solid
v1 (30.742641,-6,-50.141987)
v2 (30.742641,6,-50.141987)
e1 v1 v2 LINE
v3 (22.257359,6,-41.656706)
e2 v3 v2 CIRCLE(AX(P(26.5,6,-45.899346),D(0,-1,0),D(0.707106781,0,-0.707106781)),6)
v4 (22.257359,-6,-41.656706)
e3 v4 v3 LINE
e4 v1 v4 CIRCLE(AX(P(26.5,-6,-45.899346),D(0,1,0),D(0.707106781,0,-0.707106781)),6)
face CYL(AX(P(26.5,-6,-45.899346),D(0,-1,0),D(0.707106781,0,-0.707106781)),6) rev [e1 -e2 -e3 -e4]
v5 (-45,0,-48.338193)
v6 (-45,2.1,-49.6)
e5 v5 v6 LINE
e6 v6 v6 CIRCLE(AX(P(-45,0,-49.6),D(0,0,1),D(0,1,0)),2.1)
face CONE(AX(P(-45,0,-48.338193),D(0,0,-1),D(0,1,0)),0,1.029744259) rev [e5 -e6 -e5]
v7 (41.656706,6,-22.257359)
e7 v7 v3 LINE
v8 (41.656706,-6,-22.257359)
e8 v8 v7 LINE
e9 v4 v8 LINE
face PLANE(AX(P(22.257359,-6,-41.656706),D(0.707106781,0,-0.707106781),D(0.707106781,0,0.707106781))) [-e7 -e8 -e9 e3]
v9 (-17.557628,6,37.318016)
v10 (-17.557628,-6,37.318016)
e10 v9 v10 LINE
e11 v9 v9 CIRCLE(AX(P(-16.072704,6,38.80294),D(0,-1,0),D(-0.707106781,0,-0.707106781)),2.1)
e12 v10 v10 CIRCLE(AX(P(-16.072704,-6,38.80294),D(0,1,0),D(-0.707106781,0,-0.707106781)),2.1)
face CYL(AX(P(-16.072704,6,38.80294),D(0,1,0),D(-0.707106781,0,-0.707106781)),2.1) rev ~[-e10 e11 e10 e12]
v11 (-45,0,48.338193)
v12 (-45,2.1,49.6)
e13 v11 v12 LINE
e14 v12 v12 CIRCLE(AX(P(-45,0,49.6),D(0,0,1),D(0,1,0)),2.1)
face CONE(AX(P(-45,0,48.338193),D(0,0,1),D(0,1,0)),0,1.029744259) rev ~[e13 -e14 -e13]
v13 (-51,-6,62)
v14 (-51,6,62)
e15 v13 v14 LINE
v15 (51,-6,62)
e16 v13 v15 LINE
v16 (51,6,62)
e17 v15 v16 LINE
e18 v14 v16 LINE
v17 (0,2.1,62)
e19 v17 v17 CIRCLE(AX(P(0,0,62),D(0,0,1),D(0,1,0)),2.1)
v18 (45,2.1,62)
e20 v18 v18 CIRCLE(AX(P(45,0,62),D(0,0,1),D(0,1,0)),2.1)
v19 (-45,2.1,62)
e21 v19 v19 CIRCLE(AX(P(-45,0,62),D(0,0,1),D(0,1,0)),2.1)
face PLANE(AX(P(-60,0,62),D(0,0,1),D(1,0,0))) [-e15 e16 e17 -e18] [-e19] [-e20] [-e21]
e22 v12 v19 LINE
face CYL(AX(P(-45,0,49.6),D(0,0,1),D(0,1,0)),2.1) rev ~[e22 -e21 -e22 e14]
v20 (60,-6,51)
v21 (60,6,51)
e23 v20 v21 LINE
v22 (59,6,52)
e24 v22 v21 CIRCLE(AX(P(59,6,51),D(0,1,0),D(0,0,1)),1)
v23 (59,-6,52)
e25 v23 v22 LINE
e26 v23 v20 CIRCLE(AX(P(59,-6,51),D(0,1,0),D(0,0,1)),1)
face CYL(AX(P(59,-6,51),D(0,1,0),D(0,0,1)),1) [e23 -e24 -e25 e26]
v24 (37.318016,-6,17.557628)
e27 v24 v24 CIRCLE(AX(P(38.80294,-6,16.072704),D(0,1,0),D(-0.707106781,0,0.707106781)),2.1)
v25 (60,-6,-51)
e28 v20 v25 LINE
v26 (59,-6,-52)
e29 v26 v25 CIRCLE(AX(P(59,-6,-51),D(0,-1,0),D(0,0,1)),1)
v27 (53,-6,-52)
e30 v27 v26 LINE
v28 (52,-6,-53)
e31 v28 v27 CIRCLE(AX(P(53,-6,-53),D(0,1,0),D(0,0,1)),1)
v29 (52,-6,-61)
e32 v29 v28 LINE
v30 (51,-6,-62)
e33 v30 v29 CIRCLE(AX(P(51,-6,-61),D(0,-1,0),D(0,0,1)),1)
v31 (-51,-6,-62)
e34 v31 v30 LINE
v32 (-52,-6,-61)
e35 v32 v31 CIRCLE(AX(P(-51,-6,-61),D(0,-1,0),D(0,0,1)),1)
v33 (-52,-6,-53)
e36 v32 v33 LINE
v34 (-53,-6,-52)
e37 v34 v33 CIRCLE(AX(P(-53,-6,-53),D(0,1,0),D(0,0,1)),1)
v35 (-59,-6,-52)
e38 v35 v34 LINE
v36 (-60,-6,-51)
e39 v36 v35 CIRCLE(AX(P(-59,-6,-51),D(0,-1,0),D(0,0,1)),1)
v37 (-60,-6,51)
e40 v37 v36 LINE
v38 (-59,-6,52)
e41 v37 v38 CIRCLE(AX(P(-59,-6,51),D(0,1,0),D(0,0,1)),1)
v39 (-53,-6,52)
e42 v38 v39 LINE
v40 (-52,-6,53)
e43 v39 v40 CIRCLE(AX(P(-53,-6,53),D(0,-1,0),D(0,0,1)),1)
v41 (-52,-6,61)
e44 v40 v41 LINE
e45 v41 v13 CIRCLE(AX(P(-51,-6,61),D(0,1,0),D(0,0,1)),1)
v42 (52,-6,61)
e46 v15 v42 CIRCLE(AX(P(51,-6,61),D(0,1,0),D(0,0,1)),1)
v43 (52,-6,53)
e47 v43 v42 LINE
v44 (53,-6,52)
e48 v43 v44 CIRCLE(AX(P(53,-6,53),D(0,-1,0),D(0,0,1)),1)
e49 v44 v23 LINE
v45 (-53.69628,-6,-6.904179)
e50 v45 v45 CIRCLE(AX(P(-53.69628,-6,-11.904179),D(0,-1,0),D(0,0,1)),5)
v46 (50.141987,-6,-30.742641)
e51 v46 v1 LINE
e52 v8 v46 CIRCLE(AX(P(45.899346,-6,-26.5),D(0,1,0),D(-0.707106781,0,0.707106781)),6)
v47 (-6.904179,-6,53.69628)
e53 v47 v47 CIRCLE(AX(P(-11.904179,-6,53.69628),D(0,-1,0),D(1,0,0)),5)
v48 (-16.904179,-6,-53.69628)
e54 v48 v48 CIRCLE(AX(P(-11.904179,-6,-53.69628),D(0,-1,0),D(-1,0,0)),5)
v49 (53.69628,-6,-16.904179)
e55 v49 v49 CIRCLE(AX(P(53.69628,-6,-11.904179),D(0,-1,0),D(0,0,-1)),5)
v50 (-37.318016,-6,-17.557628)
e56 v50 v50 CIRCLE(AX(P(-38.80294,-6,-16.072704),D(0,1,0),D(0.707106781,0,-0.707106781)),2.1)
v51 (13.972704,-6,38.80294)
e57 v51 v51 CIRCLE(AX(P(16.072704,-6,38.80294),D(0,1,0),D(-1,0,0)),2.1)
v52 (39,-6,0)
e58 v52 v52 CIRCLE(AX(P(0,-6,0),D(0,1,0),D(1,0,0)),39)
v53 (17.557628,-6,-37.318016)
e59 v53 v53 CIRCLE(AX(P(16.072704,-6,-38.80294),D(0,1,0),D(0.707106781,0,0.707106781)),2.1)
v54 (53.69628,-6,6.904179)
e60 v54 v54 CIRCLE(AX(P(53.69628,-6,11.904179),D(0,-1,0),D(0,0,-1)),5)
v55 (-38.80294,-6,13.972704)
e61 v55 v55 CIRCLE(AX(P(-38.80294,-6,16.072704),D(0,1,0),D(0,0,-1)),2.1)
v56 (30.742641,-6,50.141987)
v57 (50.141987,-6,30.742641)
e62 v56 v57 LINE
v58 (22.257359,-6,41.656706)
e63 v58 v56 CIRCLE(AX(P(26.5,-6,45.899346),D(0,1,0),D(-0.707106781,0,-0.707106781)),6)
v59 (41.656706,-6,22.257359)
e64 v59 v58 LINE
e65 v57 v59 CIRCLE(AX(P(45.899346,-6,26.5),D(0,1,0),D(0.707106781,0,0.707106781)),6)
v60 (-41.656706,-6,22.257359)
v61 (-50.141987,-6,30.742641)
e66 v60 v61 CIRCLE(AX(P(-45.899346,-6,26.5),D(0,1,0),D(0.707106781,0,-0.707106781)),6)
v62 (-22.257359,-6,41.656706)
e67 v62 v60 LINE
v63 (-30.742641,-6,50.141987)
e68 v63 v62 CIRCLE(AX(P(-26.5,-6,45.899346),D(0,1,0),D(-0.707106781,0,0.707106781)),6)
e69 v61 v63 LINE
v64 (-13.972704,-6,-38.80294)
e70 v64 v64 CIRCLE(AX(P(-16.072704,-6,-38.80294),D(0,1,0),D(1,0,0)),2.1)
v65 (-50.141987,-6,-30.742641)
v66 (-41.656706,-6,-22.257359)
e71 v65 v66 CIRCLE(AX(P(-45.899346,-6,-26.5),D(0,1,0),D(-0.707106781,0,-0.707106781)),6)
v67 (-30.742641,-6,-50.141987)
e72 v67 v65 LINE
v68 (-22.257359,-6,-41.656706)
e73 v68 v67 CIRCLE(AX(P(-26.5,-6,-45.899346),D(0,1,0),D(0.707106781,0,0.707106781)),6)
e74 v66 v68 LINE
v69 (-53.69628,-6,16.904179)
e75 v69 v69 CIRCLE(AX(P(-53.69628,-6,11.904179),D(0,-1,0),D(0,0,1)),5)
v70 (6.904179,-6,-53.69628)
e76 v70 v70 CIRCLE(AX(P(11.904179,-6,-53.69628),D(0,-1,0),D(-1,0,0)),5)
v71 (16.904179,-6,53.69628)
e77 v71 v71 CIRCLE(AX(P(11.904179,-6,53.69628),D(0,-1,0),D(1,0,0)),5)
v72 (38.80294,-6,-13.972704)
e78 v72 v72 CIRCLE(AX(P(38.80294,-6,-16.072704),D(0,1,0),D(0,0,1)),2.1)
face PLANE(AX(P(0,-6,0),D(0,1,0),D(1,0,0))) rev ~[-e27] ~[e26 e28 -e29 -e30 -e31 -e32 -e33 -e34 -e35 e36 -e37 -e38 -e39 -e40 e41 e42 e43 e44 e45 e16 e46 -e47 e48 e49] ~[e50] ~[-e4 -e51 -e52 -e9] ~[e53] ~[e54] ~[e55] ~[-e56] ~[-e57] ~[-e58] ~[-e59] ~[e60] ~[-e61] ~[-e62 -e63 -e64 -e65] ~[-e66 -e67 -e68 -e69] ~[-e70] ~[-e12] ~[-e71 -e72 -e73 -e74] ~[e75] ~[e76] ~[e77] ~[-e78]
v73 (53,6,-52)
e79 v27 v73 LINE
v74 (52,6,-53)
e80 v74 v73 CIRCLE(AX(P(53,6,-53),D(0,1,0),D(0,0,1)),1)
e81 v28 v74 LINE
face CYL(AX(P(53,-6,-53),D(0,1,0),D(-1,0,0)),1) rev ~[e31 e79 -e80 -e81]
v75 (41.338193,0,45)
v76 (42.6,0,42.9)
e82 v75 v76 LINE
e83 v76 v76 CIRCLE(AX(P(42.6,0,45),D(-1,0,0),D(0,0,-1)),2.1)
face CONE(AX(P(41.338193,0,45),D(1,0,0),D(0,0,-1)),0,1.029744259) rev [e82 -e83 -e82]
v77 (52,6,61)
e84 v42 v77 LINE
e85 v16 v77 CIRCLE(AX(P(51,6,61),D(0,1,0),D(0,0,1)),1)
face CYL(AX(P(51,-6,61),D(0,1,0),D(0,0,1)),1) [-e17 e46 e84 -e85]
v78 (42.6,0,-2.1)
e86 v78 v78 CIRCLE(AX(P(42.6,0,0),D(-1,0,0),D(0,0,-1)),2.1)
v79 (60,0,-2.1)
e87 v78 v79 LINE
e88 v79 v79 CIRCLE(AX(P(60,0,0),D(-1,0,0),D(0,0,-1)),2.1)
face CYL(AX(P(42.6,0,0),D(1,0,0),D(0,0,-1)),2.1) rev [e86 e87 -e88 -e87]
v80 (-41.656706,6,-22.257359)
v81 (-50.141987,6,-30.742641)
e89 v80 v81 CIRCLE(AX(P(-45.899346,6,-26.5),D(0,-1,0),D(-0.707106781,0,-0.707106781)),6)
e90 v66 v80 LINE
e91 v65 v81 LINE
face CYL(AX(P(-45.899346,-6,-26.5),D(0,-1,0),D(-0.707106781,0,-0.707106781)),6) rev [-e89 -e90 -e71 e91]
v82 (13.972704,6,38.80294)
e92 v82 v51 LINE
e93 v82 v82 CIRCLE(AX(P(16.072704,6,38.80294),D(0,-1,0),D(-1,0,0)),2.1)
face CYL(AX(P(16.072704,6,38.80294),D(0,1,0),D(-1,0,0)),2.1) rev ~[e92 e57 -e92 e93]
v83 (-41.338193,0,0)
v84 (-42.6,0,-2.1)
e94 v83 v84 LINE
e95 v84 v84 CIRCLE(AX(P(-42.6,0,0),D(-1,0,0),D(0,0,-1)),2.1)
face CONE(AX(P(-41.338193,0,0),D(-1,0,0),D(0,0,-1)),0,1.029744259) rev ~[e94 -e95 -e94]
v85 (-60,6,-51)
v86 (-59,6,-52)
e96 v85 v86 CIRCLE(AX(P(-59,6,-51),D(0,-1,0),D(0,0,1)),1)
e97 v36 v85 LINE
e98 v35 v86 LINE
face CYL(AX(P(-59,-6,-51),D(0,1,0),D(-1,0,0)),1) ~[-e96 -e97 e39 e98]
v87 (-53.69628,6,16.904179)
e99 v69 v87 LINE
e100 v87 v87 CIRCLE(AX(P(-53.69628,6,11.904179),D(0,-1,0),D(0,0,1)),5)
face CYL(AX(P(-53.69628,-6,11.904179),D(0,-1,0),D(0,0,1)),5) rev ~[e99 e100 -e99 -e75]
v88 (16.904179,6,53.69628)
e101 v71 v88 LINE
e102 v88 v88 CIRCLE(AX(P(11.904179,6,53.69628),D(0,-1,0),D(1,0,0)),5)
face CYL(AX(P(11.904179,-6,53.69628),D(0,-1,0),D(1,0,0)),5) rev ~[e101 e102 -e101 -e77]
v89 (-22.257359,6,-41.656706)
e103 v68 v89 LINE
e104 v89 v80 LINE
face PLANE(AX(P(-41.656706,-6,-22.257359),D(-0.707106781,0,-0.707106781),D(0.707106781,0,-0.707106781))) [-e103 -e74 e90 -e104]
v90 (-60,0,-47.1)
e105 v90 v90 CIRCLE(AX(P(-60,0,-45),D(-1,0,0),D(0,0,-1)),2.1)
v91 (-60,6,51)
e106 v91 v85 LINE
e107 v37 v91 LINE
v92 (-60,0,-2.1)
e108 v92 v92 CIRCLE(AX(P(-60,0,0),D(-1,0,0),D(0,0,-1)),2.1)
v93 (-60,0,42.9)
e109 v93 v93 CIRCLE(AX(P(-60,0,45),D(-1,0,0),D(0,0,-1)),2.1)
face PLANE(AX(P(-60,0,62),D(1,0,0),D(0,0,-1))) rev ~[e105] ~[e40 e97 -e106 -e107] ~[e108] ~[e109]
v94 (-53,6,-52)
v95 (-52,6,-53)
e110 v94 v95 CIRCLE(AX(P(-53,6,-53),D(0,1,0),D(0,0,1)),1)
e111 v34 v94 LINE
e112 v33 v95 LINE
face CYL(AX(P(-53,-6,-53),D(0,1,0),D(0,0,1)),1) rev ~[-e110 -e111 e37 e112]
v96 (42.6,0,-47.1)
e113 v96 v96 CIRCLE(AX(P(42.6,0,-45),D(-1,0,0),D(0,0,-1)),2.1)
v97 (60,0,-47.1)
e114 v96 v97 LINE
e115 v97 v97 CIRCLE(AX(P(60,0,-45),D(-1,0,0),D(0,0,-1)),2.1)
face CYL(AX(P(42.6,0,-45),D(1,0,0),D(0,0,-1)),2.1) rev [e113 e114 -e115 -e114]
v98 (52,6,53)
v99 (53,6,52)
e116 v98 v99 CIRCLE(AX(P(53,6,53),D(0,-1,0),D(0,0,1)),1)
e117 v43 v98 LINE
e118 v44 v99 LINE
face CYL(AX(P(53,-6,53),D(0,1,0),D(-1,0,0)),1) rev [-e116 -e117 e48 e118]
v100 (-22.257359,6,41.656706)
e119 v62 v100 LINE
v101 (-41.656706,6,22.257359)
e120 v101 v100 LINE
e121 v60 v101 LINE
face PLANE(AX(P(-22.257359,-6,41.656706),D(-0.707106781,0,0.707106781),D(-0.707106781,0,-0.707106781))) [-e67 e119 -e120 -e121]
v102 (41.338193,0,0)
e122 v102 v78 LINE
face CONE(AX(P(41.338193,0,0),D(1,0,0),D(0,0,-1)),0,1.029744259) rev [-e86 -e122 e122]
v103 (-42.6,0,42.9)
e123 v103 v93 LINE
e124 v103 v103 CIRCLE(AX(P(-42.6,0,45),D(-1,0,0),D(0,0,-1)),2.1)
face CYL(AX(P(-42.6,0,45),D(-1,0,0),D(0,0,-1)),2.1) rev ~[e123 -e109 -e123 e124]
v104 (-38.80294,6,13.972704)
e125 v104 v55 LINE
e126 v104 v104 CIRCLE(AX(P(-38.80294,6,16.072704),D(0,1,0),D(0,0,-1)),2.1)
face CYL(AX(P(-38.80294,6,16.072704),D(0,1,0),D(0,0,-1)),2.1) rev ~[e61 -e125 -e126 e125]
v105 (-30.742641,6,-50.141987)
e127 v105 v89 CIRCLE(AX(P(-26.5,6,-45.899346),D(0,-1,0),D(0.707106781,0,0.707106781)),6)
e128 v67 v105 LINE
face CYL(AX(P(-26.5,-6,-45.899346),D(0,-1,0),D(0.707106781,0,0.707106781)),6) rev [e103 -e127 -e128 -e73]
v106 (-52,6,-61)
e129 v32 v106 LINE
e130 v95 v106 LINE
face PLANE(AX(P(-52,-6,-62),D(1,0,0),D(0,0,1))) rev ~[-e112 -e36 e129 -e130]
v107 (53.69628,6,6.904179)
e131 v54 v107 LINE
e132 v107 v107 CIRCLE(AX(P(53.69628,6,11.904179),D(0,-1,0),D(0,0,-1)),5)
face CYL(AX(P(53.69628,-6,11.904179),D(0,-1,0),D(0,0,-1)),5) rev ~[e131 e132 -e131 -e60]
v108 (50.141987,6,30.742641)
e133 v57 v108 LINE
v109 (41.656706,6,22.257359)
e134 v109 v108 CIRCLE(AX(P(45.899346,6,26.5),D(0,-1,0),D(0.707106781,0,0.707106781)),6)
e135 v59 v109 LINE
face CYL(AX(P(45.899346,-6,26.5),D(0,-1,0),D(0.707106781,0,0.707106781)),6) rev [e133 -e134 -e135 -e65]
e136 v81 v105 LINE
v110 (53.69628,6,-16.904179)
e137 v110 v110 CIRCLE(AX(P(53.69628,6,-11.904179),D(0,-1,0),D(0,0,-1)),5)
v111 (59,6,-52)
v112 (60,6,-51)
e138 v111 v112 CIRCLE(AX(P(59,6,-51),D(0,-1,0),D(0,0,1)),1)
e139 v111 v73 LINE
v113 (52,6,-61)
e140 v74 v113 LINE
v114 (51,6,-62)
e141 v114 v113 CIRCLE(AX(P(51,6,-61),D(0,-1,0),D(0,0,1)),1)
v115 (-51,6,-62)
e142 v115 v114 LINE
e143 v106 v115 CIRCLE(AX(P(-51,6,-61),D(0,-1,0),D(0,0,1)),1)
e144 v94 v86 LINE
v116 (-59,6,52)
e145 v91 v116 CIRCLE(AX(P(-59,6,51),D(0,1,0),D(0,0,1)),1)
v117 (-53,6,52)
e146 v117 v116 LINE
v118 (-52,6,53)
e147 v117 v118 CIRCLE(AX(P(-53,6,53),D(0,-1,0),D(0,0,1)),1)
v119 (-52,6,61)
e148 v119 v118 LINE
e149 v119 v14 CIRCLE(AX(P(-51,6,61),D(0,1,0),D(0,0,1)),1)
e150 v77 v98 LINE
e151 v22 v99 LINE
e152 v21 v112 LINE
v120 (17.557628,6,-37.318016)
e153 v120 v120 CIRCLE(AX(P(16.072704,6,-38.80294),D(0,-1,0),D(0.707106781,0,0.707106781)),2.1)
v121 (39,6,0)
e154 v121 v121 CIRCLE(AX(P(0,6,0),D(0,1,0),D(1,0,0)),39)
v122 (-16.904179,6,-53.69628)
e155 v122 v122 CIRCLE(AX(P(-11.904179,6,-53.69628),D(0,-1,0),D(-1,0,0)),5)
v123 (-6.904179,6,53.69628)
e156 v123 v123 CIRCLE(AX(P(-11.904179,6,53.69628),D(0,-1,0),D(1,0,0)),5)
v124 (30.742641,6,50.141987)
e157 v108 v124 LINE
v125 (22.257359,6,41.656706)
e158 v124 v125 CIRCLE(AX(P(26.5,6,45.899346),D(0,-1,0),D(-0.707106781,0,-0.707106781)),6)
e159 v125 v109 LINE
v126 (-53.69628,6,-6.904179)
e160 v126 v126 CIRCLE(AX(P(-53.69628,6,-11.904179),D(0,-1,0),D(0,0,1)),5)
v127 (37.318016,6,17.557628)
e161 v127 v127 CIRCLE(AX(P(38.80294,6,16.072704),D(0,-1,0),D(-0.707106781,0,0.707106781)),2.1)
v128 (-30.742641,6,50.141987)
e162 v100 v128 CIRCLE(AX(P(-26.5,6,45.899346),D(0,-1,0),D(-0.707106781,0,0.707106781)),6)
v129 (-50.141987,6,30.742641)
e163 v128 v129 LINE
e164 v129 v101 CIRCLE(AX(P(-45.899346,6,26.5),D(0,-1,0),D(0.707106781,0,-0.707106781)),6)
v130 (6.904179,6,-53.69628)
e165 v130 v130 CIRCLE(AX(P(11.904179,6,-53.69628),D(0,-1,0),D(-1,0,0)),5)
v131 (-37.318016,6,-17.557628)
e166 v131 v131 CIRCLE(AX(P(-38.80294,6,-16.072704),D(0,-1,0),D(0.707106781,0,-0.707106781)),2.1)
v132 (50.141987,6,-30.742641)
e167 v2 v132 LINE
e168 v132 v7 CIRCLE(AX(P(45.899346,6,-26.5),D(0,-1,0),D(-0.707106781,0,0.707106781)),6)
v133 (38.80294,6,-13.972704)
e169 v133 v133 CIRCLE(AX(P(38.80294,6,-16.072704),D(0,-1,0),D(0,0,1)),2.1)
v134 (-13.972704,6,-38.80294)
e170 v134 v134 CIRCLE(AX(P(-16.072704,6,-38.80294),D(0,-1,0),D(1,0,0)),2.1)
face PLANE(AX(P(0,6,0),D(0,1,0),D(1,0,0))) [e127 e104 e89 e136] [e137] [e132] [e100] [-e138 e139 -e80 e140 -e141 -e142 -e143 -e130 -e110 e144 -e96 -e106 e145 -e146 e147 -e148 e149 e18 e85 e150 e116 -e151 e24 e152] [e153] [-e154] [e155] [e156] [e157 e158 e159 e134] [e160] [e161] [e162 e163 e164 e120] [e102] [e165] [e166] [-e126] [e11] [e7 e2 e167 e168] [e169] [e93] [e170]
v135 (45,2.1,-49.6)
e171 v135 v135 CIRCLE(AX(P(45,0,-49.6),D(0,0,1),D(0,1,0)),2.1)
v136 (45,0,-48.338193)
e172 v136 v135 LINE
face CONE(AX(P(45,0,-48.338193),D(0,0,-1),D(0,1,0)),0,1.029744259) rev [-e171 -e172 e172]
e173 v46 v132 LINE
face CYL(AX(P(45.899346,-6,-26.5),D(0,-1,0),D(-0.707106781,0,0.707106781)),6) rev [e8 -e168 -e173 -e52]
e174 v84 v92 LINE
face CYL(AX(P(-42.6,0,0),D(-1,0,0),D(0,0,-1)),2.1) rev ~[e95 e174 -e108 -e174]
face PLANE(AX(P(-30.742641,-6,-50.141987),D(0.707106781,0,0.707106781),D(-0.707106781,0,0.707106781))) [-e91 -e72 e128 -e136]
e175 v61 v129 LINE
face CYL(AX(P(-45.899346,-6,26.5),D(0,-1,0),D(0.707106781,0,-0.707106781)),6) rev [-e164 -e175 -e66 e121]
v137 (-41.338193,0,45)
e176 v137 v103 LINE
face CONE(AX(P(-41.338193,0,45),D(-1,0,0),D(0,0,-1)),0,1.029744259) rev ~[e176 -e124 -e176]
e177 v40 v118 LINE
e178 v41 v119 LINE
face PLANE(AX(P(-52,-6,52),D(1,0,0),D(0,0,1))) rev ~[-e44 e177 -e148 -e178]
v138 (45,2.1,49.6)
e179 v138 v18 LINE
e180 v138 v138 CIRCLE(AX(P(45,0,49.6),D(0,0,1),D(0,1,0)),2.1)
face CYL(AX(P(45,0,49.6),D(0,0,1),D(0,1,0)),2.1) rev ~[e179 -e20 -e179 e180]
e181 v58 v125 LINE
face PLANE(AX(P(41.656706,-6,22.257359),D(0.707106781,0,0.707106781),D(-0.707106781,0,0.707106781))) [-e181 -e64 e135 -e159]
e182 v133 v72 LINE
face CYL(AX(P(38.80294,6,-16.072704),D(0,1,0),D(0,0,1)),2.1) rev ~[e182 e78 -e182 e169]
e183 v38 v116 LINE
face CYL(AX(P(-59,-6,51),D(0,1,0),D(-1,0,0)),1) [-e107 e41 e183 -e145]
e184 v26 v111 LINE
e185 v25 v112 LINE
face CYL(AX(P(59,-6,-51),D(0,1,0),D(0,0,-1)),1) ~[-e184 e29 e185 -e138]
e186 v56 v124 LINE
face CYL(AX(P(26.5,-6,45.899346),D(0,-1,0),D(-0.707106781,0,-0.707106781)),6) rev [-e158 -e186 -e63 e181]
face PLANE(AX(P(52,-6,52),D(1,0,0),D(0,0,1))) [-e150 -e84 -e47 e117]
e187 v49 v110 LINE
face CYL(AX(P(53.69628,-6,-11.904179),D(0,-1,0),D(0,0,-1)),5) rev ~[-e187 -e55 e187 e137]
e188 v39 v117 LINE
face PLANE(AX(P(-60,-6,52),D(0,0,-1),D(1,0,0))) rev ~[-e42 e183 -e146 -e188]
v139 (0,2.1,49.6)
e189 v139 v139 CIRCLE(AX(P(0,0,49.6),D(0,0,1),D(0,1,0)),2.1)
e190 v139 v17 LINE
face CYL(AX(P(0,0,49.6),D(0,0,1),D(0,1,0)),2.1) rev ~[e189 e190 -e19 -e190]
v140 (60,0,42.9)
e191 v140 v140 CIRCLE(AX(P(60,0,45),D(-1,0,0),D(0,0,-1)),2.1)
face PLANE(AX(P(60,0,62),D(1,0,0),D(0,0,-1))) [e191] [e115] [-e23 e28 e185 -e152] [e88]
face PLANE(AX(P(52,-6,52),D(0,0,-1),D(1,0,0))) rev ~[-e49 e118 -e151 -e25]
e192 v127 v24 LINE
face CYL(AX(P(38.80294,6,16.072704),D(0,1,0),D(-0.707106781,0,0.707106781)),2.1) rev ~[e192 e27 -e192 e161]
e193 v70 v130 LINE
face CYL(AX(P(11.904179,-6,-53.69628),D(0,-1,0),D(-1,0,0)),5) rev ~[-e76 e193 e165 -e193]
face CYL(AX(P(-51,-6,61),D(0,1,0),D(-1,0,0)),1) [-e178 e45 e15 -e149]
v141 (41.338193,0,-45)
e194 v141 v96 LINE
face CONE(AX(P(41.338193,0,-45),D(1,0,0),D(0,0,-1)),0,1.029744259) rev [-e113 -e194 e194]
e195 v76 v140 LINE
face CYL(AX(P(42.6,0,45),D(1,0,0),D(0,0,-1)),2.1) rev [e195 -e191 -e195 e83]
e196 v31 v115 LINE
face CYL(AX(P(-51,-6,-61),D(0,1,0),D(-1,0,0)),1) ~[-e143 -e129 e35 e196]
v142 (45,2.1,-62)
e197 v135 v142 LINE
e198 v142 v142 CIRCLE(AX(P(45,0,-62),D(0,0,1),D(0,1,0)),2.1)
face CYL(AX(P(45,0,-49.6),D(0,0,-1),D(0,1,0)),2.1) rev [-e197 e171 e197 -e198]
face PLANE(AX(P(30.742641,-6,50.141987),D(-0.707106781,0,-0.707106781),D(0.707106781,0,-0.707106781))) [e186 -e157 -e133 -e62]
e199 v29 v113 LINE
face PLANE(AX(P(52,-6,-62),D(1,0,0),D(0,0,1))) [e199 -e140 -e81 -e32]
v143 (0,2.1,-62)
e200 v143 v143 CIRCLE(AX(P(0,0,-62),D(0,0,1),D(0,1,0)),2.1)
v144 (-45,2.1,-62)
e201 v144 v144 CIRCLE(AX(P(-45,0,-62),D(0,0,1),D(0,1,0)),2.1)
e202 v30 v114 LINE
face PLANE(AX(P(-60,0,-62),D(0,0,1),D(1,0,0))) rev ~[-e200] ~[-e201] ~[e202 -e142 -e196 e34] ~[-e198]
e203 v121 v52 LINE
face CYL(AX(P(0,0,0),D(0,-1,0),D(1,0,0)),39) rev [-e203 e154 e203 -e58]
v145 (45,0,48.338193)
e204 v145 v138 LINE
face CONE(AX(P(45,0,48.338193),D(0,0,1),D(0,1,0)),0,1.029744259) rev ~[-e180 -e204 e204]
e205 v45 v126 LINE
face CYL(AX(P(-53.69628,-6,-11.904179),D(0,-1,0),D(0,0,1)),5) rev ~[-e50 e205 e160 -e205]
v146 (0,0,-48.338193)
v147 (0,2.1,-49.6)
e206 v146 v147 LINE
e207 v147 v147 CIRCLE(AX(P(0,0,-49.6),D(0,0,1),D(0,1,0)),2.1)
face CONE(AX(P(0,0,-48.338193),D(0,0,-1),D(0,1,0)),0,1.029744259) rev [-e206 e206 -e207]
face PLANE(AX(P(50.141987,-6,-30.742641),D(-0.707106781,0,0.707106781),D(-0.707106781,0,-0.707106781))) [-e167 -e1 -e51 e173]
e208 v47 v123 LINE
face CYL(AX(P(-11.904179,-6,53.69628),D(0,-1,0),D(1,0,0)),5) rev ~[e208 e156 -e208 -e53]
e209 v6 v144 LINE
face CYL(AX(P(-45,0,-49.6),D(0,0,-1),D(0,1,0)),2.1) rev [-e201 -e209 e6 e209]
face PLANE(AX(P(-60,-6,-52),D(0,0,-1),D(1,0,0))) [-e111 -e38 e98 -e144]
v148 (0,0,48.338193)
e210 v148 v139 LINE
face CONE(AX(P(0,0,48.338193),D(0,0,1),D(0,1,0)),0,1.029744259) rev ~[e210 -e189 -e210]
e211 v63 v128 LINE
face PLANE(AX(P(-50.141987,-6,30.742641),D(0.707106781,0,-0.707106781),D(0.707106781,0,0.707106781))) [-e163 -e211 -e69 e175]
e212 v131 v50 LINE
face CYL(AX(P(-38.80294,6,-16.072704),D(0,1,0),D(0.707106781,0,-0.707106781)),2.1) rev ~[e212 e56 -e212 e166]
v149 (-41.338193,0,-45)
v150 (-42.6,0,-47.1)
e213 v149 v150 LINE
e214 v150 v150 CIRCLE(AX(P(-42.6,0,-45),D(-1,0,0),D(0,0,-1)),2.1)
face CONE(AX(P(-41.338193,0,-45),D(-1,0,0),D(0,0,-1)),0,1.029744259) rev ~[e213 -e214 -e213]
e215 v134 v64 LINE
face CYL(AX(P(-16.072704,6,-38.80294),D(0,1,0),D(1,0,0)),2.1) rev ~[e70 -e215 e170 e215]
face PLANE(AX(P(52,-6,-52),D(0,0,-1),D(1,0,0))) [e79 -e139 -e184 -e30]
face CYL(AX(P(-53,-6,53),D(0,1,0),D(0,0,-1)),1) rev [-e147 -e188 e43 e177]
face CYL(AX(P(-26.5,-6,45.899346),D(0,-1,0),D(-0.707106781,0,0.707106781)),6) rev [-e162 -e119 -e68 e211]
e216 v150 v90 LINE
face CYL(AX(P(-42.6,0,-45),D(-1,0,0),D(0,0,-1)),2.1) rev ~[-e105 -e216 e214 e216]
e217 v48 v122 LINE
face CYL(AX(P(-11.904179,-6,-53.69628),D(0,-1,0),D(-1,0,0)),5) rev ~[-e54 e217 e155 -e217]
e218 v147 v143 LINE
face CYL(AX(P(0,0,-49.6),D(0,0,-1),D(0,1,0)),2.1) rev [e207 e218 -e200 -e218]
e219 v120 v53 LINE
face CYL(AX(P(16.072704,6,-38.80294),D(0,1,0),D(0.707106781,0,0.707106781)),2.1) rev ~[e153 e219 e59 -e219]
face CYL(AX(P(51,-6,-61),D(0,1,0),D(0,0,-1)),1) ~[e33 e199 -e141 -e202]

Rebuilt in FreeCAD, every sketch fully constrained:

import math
import FreeCAD as App
import Part
import Sketcher

V = App.Vector
Q = App.Units.Quantity


def edges_at(feature, points):
    """Names of the edges that pass closest to the given points."""
    edges = feature.Shape.Edges
    near = lambda p: min(range(len(edges)), key=lambda i: edges[i].distToShape(Part.Vertex(*p))[0])
    return sorted({f"Edge{near(p) + 1}" for p in points})

doc = App.newDocument("Part")
body = doc.addObject("PartDesign::Body", "Body")

sketch1 = doc.addObject("Sketcher::SketchObject", "Sketch")
body.addObject(sketch1)
sketch1.AttachmentSupport = (doc.XZ_Plane, [""])
sketch1.MapMode = "FlatFace"
sketch1.addGeometry([
    Part.LineSegment(V(-60, -62, 0), V(-60, 62, 0)),
    Part.LineSegment(V(-60, 62, 0), V(60, 62, 0)),
    Part.LineSegment(V(60, 62, 0), V(60, -62, 0)),
    Part.LineSegment(V(60, -62, 0), V(-60, -62, 0)),
    Part.Circle(V(0, 0, 0), V(0, 0, 1), 39),
], False)
sketch1.addConstraint([
    Sketcher.Constraint("Coincident", 0, 2, 1, 1),
    Sketcher.Constraint("Coincident", 1, 2, 2, 1),
    Sketcher.Constraint("Coincident", 2, 2, 3, 1),
    Sketcher.Constraint("Coincident", 3, 2, 0, 1),
    Sketcher.Constraint("Vertical", 0),
    Sketcher.Constraint("Horizontal", 1),
    Sketcher.Constraint("Vertical", 2),
    Sketcher.Constraint("Horizontal", 3),
    Sketcher.Constraint("Coincident", 4, 3, -1, 1),
    Sketcher.Constraint("Symmetric", 0, 2, 2, 2, -1, 1),
    Sketcher.Constraint("Diameter", 4, 78.0),
    Sketcher.Constraint("DistanceX", 1, 1, 1, 2, 120.0),
    Sketcher.Constraint("DistanceY", 0, 1, 0, 2, 124.0),
])
pad1 = doc.addObject("PartDesign::Pad", "Pad")
body.addObject(pad1)
pad1.Profile = sketch1
pad1.Length = 12
pad1.Midplane = True

sketch2 = doc.addObject("Sketcher::SketchObject", "Sketch001")
body.addObject(sketch2)
sketch2.AttachmentSupport = (doc.XZ_Plane, [""])
sketch2.MapMode = "FlatFace"
sketch2.AttachmentOffset = App.Placement(V(0, 0, -6), App.Rotation())
sketch2.addGeometry(Part.Circle(V(-16.072704, -38.80294, 0), V(0, 0, 1), 2.1), False)
sketch2.addConstraint([
    Sketcher.Constraint("Diameter", 0, 4.2),
    Sketcher.Constraint("DistanceY", 0, 3, -1, 1, 38.80294),
    Sketcher.Constraint("DistanceX", 0, 3, -1, 1, 16.072704),
])
pocket1 = doc.addObject("PartDesign::Pocket", "Pocket")
body.addObject(pocket1)
pocket1.Profile = sketch2
pocket1.Type = "ThroughAll"
pocket1.Reversed = True
doc.recompute()

polarpattern = doc.addObject("PartDesign::PolarPattern", "PolarPattern")
body.addObject(polarpattern)
polarpattern.Originals = [pocket1]
polarpattern.Axis = (doc.Y_Axis, [""])
polarpattern.Angle = 360
polarpattern.Occurrences = 8
body.Tip = polarpattern

sketch3 = doc.addObject("Sketcher::SketchObject", "Sketch002")
body.addObject(sketch3)
sketch3.AttachmentSupport = (doc.YZ_Plane, [""])
sketch3.MapMode = "FlatFace"
sketch3.AttachmentOffset = App.Placement(V(0, 0, 60), App.Rotation())
sketch3.addGeometry([
    Part.Circle(V(0, 45, 0), V(0, 0, 1), 1.5),
    Part.Circle(V(0, 0, 0), V(0, 0, 1), 1.5),
    Part.Circle(V(0, -45, 0), V(0, 0, 1), 1.5),
], False)
sketch3.addConstraint([
    Sketcher.Constraint("Coincident", 1, 3, -1, 1),
    Sketcher.Constraint("Equal", 0, 1),
    Sketcher.Constraint("Equal", 1, 2),
    Sketcher.Constraint("Symmetric", 0, 3, 2, 3, -1, 1),
    Sketcher.Constraint("PointOnObject", 0, 3, -2),
    Sketcher.Constraint("Diameter", 0, 3.0),
    Sketcher.Constraint("DistanceY", -1, 1, 0, 3, 45.0),
])
pocket2 = doc.addObject("PartDesign::Pocket", "Pocket001")
body.addObject(pocket2)
pocket2.Profile = sketch3
pocket2.Length = 15

sketch4 = doc.addObject("Sketcher::SketchObject", "Sketch003")
body.addObject(sketch4)
sketch4.AttachmentSupport = (doc.XY_Plane, [""])
sketch4.MapMode = "FlatFace"
sketch4.AttachmentOffset = App.Placement(V(0, 0, -62), App.Rotation())
sketch4.addGeometry([
    Part.Circle(V(45, 0, 0), V(0, 0, 1), 1.5),
    Part.Circle(V(0, 0, 0), V(0, 0, 1), 1.5),
    Part.Circle(V(-45, 0, 0), V(0, 0, 1), 1.5),
], False)
sketch4.addConstraint([
    Sketcher.Constraint("Coincident", 1, 3, -1, 1),
    Sketcher.Constraint("Equal", 0, 1),
    Sketcher.Constraint("Equal", 1, 2),
    Sketcher.Constraint("Symmetric", 0, 3, 2, 3, -1, 1),
    Sketcher.Constraint("PointOnObject", 0, 3, -1),
    Sketcher.Constraint("Diameter", 0, 3.0),
    Sketcher.Constraint("DistanceX", -1, 1, 0, 3, 45.0),
])
pocket3 = doc.addObject("PartDesign::Pocket", "Pocket002")
body.addObject(pocket3)
pocket3.Profile = sketch4
pocket3.Length = 10
pocket3.Reversed = True

sketch5 = doc.addObject("Sketcher::SketchObject", "Sketch004")
body.addObject(sketch5)
sketch5.AttachmentSupport = (doc.XZ_Plane, [""])
sketch5.MapMode = "FlatFace"
sketch5.addGeometry([
    Part.LineSegment(V(41.338193, -45, 0), V(60, -45, 0)),
    Part.LineSegment(V(60, -45, 0), V(60, -47.1, 0)),
    Part.LineSegment(V(60, -47.1, 0), V(42.6, -47.1, 0)),
    Part.LineSegment(V(42.6, -47.1, 0), V(41.338193, -45, 0)),
], False)
sketch5.addGeometry(Part.LineSegment(V(60, -45, 0), V(41.338193, -45, 0)), True)
sketch5.addConstraint([
    Sketcher.Constraint("Coincident", 0, 2, 1, 1),
    Sketcher.Constraint("Coincident", 1, 2, 2, 1),
    Sketcher.Constraint("Coincident", 2, 2, 3, 1),
    Sketcher.Constraint("Coincident", 3, 2, 0, 1),
    Sketcher.Constraint("Horizontal", 0),
    Sketcher.Constraint("Vertical", 1),
    Sketcher.Constraint("Horizontal", 2),
    Sketcher.Constraint("Horizontal", 4),
    Sketcher.Constraint("Coincident", 4, 1, 0, 2),
    Sketcher.Constraint("Equal", 0, 4),
    Sketcher.Constraint("Angle", 3, Q("121 deg")),
    Sketcher.Constraint("DistanceX", 2, 2, 2, 1, 17.4),
    Sketcher.Constraint("DistanceY", 1, 2, 1, 1, 2.1),
    Sketcher.Constraint("DistanceX", -1, 1, 0, 2, 60.0),
    Sketcher.Constraint("DistanceY", 0, 2, -1, 1, 45.0),
])
groove = doc.addObject("PartDesign::Groove", "Groove")
body.addObject(groove)
groove.Profile = sketch5
groove.ReferenceAxis = (sketch5, ["Axis0"])
groove.Angle = 360
doc.recompute()

linearpattern = doc.addObject("PartDesign::LinearPattern", "LinearPattern")
body.addObject(linearpattern)
linearpattern.Originals = [groove]
linearpattern.Direction = (doc.Z_Axis, [""])
linearpattern.Mode = "offset"
linearpattern.Offset = 45
linearpattern.Occurrences = 2
body.Tip = linearpattern
doc.recompute()

linearpattern2 = doc.addObject("PartDesign::LinearPattern", "LinearPattern001")
body.addObject(linearpattern2)
linearpattern2.Originals = [groove]
linearpattern2.Direction = (doc.Z_Axis, [""])
linearpattern2.Mode = "offset"
linearpattern2.Offset = 90
linearpattern2.Occurrences = 2
body.Tip = linearpattern2

sketch6 = doc.addObject("Sketcher::SketchObject", "Sketch005")
body.addObject(sketch6)
sketch6.AttachmentSupport = (doc.YZ_Plane, [""])
sketch6.MapMode = "FlatFace"
sketch6.AttachmentOffset = App.Placement(V(0, 0, 45), App.Rotation())
sketch6.addGeometry([
    Part.LineSegment(V(0, -48.338193, 0), V(0, -62, 0)),
    Part.LineSegment(V(0, -62, 0), V(2.1, -62, 0)),
    Part.LineSegment(V(2.1, -62, 0), V(2.1, -49.6, 0)),
    Part.LineSegment(V(2.1, -49.6, 0), V(0, -48.338193, 0)),
], False)
sketch6.addConstraint([
    Sketcher.Constraint("Coincident", 0, 2, 1, 1),
    Sketcher.Constraint("Coincident", 1, 2, 2, 1),
    Sketcher.Constraint("Coincident", 2, 2, 3, 1),
    Sketcher.Constraint("Coincident", 3, 2, 0, 1),
    Sketcher.Constraint("Vertical", 0),
    Sketcher.Constraint("Horizontal", 1),
    Sketcher.Constraint("Vertical", 2),
    Sketcher.Constraint("PointOnObject", 0, 2, -2),
    Sketcher.Constraint("Angle", 3, Q("149 deg")),
    Sketcher.Constraint("DistanceX", 1, 1, 1, 2, 2.1),
    Sketcher.Constraint("DistanceY", 2, 1, 2, 2, 12.4),
    Sketcher.Constraint("DistanceY", 0, 2, -1, 1, 62.0),
])
groove2 = doc.addObject("PartDesign::Groove", "Groove001")
body.addObject(groove2)
groove2.Profile = sketch6
groove2.ReferenceAxis = (sketch6, ["V_Axis"])
groove2.Angle = 360
doc.recompute()

linearpattern3 = doc.addObject("PartDesign::LinearPattern", "LinearPattern002")
body.addObject(linearpattern3)
linearpattern3.Originals = [groove2]
linearpattern3.Direction = (doc.X_Axis, [""])
linearpattern3.Mode = "offset"
linearpattern3.Offset = 45
linearpattern3.Occurrences = 2
linearpattern3.Reversed = True
body.Tip = linearpattern3
doc.recompute()

linearpattern4 = doc.addObject("PartDesign::LinearPattern", "LinearPattern003")
body.addObject(linearpattern4)
linearpattern4.Originals = [groove2]
linearpattern4.Direction = (doc.X_Axis, [""])
linearpattern4.Mode = "offset"
linearpattern4.Offset = 90
linearpattern4.Occurrences = 2
linearpattern4.Reversed = True
body.Tip = linearpattern4
doc.recompute()

mirrored = doc.addObject("PartDesign::Mirrored", "Mirrored")
body.addObject(mirrored)
mirrored.Originals = [groove, pocket2]
mirrored.MirrorPlane = (doc.YZ_Plane, [""])
body.Tip = mirrored

sketch7 = doc.addObject("Sketcher::SketchObject", "Sketch006")
body.addObject(sketch7)
sketch7.AttachmentSupport = (doc.XZ_Plane, [""])
sketch7.MapMode = "FlatFace"
sketch7.addGeometry([
    Part.LineSegment(V(-60, 0, 0), V(-41.338193, 0, 0)),
    Part.LineSegment(V(-41.338193, 0, 0), V(-42.6, -2.1, 0)),
    Part.LineSegment(V(-42.6, -2.1, 0), V(-60, -2.1, 0)),
    Part.LineSegment(V(-60, -2.1, 0), V(-60, 0, 0)),
], False)
sketch7.addConstraint([
    Sketcher.Constraint("Coincident", 0, 2, 1, 1),
    Sketcher.Constraint("Coincident", 1, 2, 2, 1),
    Sketcher.Constraint("Coincident", 2, 2, 3, 1),
    Sketcher.Constraint("Coincident", 3, 2, 0, 1),
    Sketcher.Constraint("Horizontal", 0),
    Sketcher.Constraint("Horizontal", 2),
    Sketcher.Constraint("Vertical", 3),
    Sketcher.Constraint("PointOnObject", 0, 2, -1),
    Sketcher.Constraint("Angle", 1, Q("-121 deg")),
    Sketcher.Constraint("DistanceX", 2, 2, 2, 1, 17.4),
    Sketcher.Constraint("DistanceY", 3, 1, 3, 2, 2.1),
    Sketcher.Constraint("DistanceX", 2, 2, -1, 1, 60.0),
])
groove3 = doc.addObject("PartDesign::Groove", "Groove002")
body.addObject(groove3)
groove3.Profile = sketch7
groove3.ReferenceAxis = (sketch7, ["H_Axis"])
groove3.Angle = 360

sketch8 = doc.addObject("Sketcher::SketchObject", "Sketch007")
body.addObject(sketch8)
sketch8.AttachmentSupport = (doc.XZ_Plane, [""])
sketch8.MapMode = "FlatFace"
sketch8.addGeometry([
    Part.LineSegment(V(-60, 45, 0), V(-41.338193, 45, 0)),
    Part.LineSegment(V(-41.338193, 45, 0), V(-42.6, 42.9, 0)),
    Part.LineSegment(V(-42.6, 42.9, 0), V(-60, 42.9, 0)),
    Part.LineSegment(V(-60, 42.9, 0), V(-60, 45, 0)),
], False)
sketch8.addGeometry(Part.LineSegment(V(-41.338193, 45, 0), V(-60, 45, 0)), True)
sketch8.addConstraint([
    Sketcher.Constraint("Coincident", 0, 2, 1, 1),
    Sketcher.Constraint("Coincident", 1, 2, 2, 1),
    Sketcher.Constraint("Coincident", 2, 2, 3, 1),
    Sketcher.Constraint("Coincident", 3, 2, 0, 1),
    Sketcher.Constraint("Horizontal", 0),
    Sketcher.Constraint("Horizontal", 2),
    Sketcher.Constraint("Vertical", 3),
    Sketcher.Constraint("Horizontal", 4),
    Sketcher.Constraint("Coincident", 4, 1, 0, 2),
    Sketcher.Constraint("Vertical", 2, 2, 4, 2),
    Sketcher.Constraint("Angle", 1, Q("-121 deg")),
    Sketcher.Constraint("DistanceX", 2, 2, 2, 1, 17.4),
    Sketcher.Constraint("DistanceY", 3, 1, 3, 2, 2.1),
    Sketcher.Constraint("DistanceY", -1, 1, 0, 2, 45.0),
    Sketcher.Constraint("DistanceX", 2, 2, -1, 1, 60.0),
])
groove4 = doc.addObject("PartDesign::Groove", "Groove003")
body.addObject(groove4)
groove4.Profile = sketch8
groove4.ReferenceAxis = (sketch8, ["Axis0"])
groove4.Angle = 360
doc.recompute()

mirrored2 = doc.addObject("PartDesign::Mirrored", "Mirrored001")
body.addObject(mirrored2)
mirrored2.Originals = [groove2, pocket3]
mirrored2.MirrorPlane = (doc.XY_Plane, [""])
body.Tip = mirrored2

sketch9 = doc.addObject("Sketcher::SketchObject", "Sketch008")
body.addObject(sketch9)
sketch9.AttachmentSupport = (doc.YZ_Plane, [""])
sketch9.MapMode = "FlatFace"
sketch9.addGeometry([
    Part.LineSegment(V(0, 62, 0), V(0, 48.338193, 0)),
    Part.LineSegment(V(0, 48.338193, 0), V(2.1, 49.6, 0)),
    Part.LineSegment(V(2.1, 49.6, 0), V(2.1, 62, 0)),
    Part.LineSegment(V(2.1, 62, 0), V(0, 62, 0)),
], False)
sketch9.addConstraint([
    Sketcher.Constraint("Coincident", 0, 2, 1, 1),
    Sketcher.Constraint("Coincident", 1, 2, 2, 1),
    Sketcher.Constraint("Coincident", 2, 2, 3, 1),
    Sketcher.Constraint("Coincident", 3, 2, 0, 1),
    Sketcher.Constraint("Vertical", 0),
    Sketcher.Constraint("Vertical", 2),
    Sketcher.Constraint("Horizontal", 3),
    Sketcher.Constraint("PointOnObject", 0, 2, -2),
    Sketcher.Constraint("Angle", 1, Q("31 deg")),
    Sketcher.Constraint("DistanceX", 3, 2, 3, 1, 2.1),
    Sketcher.Constraint("DistanceY", 2, 1, 2, 2, 12.4),
    Sketcher.Constraint("DistanceY", -1, 1, 2, 2, 62.0),
])
groove5 = doc.addObject("PartDesign::Groove", "Groove004")
body.addObject(groove5)
groove5.Profile = sketch9
groove5.ReferenceAxis = (sketch9, ["V_Axis"])
groove5.Angle = 360

sketch10 = doc.addObject("Sketcher::SketchObject", "Sketch009")
body.addObject(sketch10)
sketch10.AttachmentSupport = (doc.YZ_Plane, [""])
sketch10.MapMode = "FlatFace"
sketch10.AttachmentOffset = App.Placement(V(0, 0, -45), App.Rotation())
sketch10.addGeometry([
    Part.LineSegment(V(0, 62, 0), V(0, 48.338193, 0)),
    Part.LineSegment(V(0, 48.338193, 0), V(2.1, 49.6, 0)),
    Part.LineSegment(V(2.1, 49.6, 0), V(2.1, 62, 0)),
    Part.LineSegment(V(2.1, 62, 0), V(0, 62, 0)),
], False)
sketch10.addConstraint([
    Sketcher.Constraint("Coincident", 0, 2, 1, 1),
    Sketcher.Constraint("Coincident", 1, 2, 2, 1),
    Sketcher.Constraint("Coincident", 2, 2, 3, 1),
    Sketcher.Constraint("Coincident", 3, 2, 0, 1),
    Sketcher.Constraint("Vertical", 0),
    Sketcher.Constraint("Vertical", 2),
    Sketcher.Constraint("Horizontal", 3),
    Sketcher.Constraint("PointOnObject", 0, 2, -2),
    Sketcher.Constraint("Angle", 1, Q("31 deg")),
    Sketcher.Constraint("DistanceX", 3, 2, 3, 1, 2.1),
    Sketcher.Constraint("DistanceY", 2, 1, 2, 2, 12.4),
    Sketcher.Constraint("DistanceY", -1, 1, 2, 2, 62.0),
])
groove6 = doc.addObject("PartDesign::Groove", "Groove005")
body.addObject(groove6)
groove6.Profile = sketch10
groove6.ReferenceAxis = (sketch10, ["V_Axis"])
groove6.Angle = 360

sketch11 = doc.addObject("Sketcher::SketchObject", "Sketch010")
body.addObject(sketch11)
sketch11.AttachmentSupport = (doc.XZ_Plane, [""])
sketch11.MapMode = "FlatFace"
sketch11.AttachmentOffset = App.Placement(V(0, 0, 6), App.Rotation())
sketch11.addGeometry([
    Part.LineSegment(V(-60, 62, 0), V(-60, 52, 0)),
    Part.LineSegment(V(-60, 52, 0), V(-52, 52, 0)),
    Part.LineSegment(V(-52, 52, 0), V(-52, 62, 0)),
    Part.LineSegment(V(-52, 62, 0), V(-60, 62, 0)),
    Part.LineSegment(V(52, 62, 0), V(52, 52, 0)),
    Part.LineSegment(V(52, 52, 0), V(60, 52, 0)),
    Part.LineSegment(V(60, 52, 0), V(60, 62, 0)),
    Part.LineSegment(V(60, 62, 0), V(52, 62, 0)),
    Part.LineSegment(V(52, -52, 0), V(52, -62, 0)),
    Part.LineSegment(V(52, -62, 0), V(60, -62, 0)),
    Part.LineSegment(V(60, -62, 0), V(60, -52, 0)),
    Part.LineSegment(V(60, -52, 0), V(52, -52, 0)),
    Part.LineSegment(V(-60, -52, 0), V(-60, -62, 0)),
    Part.LineSegment(V(-60, -62, 0), V(-52, -62, 0)),
    Part.LineSegment(V(-52, -62, 0), V(-52, -52, 0)),
    Part.LineSegment(V(-52, -52, 0), V(-60, -52, 0)),
], False)
sketch11.addConstraint([
    Sketcher.Constraint("Coincident", 0, 2, 1, 1),
    Sketcher.Constraint("Coincident", 1, 2, 2, 1),
    Sketcher.Constraint("Coincident", 2, 2, 3, 1),
    Sketcher.Constraint("Coincident", 3, 2, 0, 1),
    Sketcher.Constraint("Coincident", 4, 2, 5, 1),
    Sketcher.Constraint("Coincident", 5, 2, 6, 1),
    Sketcher.Constraint("Coincident", 6, 2, 7, 1),
    Sketcher.Constraint("Coincident", 7, 2, 4, 1),
    Sketcher.Constraint("Coincident", 8, 2, 9, 1),
    Sketcher.Constraint("Coincident", 9, 2, 10, 1),
    Sketcher.Constraint("Coincident", 10, 2, 11, 1),
    Sketcher.Constraint("Coincident", 11, 2, 8, 1),
    Sketcher.Constraint("Coincident", 12, 2, 13, 1),
    Sketcher.Constraint("Coincident", 13, 2, 14, 1),
    Sketcher.Constraint("Coincident", 14, 2, 15, 1),
    Sketcher.Constraint("Coincident", 15, 2, 12, 1),
    Sketcher.Constraint("Vertical", 0),
    Sketcher.Constraint("Horizontal", 1),
    Sketcher.Constraint("Vertical", 2),
    Sketcher.Constraint("Horizontal", 3),
    Sketcher.Constraint("Vertical", 4),
    Sketcher.Constraint("Horizontal", 5),
    Sketcher.Constraint("Vertical", 6),
    Sketcher.Constraint("Horizontal", 7),
    Sketcher.Constraint("Vertical", 8),
    Sketcher.Constraint("Horizontal", 9),
    Sketcher.Constraint("Vertical", 10),
    Sketcher.Constraint("Horizontal", 11),
    Sketcher.Constraint("Vertical", 12),
    Sketcher.Constraint("Horizontal", 13),
    Sketcher.Constraint("Vertical", 14),
    Sketcher.Constraint("Horizontal", 15),
    Sketcher.Constraint("Symmetric", 2, 2, 8, 2, -1, 1),
    Sketcher.Constraint("Symmetric", 0, 2, 10, 2, -1, 1),
    Sketcher.Constraint("Symmetric", 6, 2, 12, 2, -1, 1),
    Sketcher.Constraint("Symmetric", 4, 2, 14, 2, -1, 1),
    Sketcher.Constraint("Symmetric", 1, 2, 4, 2, -2),
    Sketcher.Constraint("Symmetric", 3, 2, 6, 2, -2),
    Sketcher.Constraint("DistanceX", 1, 1, 1, 2, 8.0),
    Sketcher.Constraint("DistanceY", 0, 2, 0, 1, 10.0),
    Sketcher.Constraint("DistanceX", 0, 2, -1, 1, 60.0),
    Sketcher.Constraint("DistanceY", -1, 1, 0, 2, 52.0),
])
pocket4 = doc.addObject("PartDesign::Pocket", "Pocket003")
body.addObject(pocket4)
pocket4.Profile = sketch11
pocket4.Type = "ThroughAll"

sketch12 = doc.addObject("Sketcher::SketchObject", "Sketch011")
body.addObject(sketch12)
sketch12.AttachmentSupport = (doc.XZ_Plane, [""])
sketch12.MapMode = "FlatFace"
sketch12.AttachmentOffset = App.Placement(V(0, 0, -6), App.Rotation())
sketch12.addGeometry([
    Part.Circle(V(16.072704, -38.80294, 0), V(0, 0, 1), 2.1),
    Part.Circle(V(38.80294, -16.072704, 0), V(0, 0, 1), 2.1),
    Part.Circle(V(38.80294, 16.072704, 0), V(0, 0, 1), 2.1),
    Part.Circle(V(16.072704, 38.80294, 0), V(0, 0, 1), 2.1),
    Part.Circle(V(-16.072704, 38.80294, 0), V(0, 0, 1), 2.1),
    Part.Circle(V(-38.80294, 16.072704, 0), V(0, 0, 1), 2.1),
    Part.Circle(V(-38.80294, -16.072704, 0), V(0, 0, 1), 2.1),
    Part.Circle(V(-16.072704, -38.80294, 0), V(0, 0, 1), 2.1),
], False)
sketch12.addConstraint([
    Sketcher.Constraint("Equal", 0, 1),
    Sketcher.Constraint("Equal", 1, 2),
    Sketcher.Constraint("Equal", 2, 3),
    Sketcher.Constraint("Equal", 3, 4),
    Sketcher.Constraint("Equal", 4, 5),
    Sketcher.Constraint("Equal", 5, 6),
    Sketcher.Constraint("Equal", 6, 7),
    Sketcher.Constraint("Symmetric", 0, 3, 4, 3, -1, 1),
    Sketcher.Constraint("Symmetric", 1, 3, 5, 3, -1, 1),
    Sketcher.Constraint("Symmetric", 2, 3, 6, 3, -1, 1),
    Sketcher.Constraint("Symmetric", 3, 3, 7, 3, -1, 1),
    Sketcher.Constraint("Symmetric", 3, 3, 4, 3, -2),
    Sketcher.Constraint("Symmetric", 2, 3, 5, 3, -2),
    Sketcher.Constraint("Diameter", 0, 4.2),
    Sketcher.Constraint("DistanceY", 0, 3, -1, 1, 38.80294),
    Sketcher.Constraint("DistanceX", -1, 1, 1, 3, 38.80294),
    Sketcher.Constraint("DistanceY", 1, 3, 2, 3, 32.145408),
    Sketcher.Constraint("DistanceX", 4, 3, 3, 3, 32.145408),
])
doc.recompute()
hole = doc.addObject("PartDesign::Hole", "Hole")
body.addObject(hole)
hole.Profile = sketch12
hole.ThreadType = "None"
hole.Diameter = 4.2
hole.DepthType = "ThroughAll"
hole.Reversed = True

sketch13 = doc.addObject("Sketcher::SketchObject", "Sketch012")
body.addObject(sketch13)
sketch13.AttachmentSupport = (doc.XZ_Plane, [""])
sketch13.MapMode = "FlatFace"
sketch13.AttachmentOffset = App.Placement(V(0, 0, 6), App.Rotation())
sketch13.addGeometry([
    Part.LineSegment(V(41.656706, -22.257359, 0), V(22.257359, -41.656706, 0)),
    Part.ArcOfCircle(Part.Circle(V(26.5, -45.899346, 0), V(0, 0, 1), 6), math.radians(135), math.radians(315)),
    Part.LineSegment(V(30.742641, -50.141987, 0), V(50.141987, -30.742641, 0)),
    Part.ArcOfCircle(Part.Circle(V(45.899346, -26.5, 0), V(0, 0, 1), 6), math.radians(-45), math.radians(135)),
], False)
sketch13.addConstraint([
    Sketcher.Constraint("Tangent", 0, 2, 1, 1),
    Sketcher.Constraint("Tangent", 1, 2, 2, 1),
    Sketcher.Constraint("Tangent", 2, 2, 3, 1),
    Sketcher.Constraint("Tangent", 3, 2, 0, 1),
    Sketcher.Constraint("Equal", 1, 3),
    Sketcher.Constraint("Radius", 1, 6.0),
    Sketcher.Constraint("Angle", 0, Q("-135 deg")),
    Sketcher.Constraint("DistanceX", -1, 1, 1, 3, 26.5),
    Sketcher.Constraint("DistanceY", 3, 3, -1, 1, 26.5),
    Sketcher.Constraint("Distance", 0, 27.434819),
])
pocket5 = doc.addObject("PartDesign::Pocket", "Pocket004")
body.addObject(pocket5)
pocket5.Profile = sketch13
pocket5.Type = "ThroughAll"
doc.recompute()

polarpattern2 = doc.addObject("PartDesign::PolarPattern", "PolarPattern001")
body.addObject(polarpattern2)
polarpattern2.Originals = [pocket5]
polarpattern2.Axis = (doc.Y_Axis, [""])
polarpattern2.Angle = 360
polarpattern2.Occurrences = 4
body.Tip = polarpattern2

sketch14 = doc.addObject("Sketcher::SketchObject", "Sketch013")
body.addObject(sketch14)
sketch14.AttachmentSupport = (doc.XZ_Plane, [""])
sketch14.MapMode = "FlatFace"
sketch14.AttachmentOffset = App.Placement(V(0, 0, 6), App.Rotation())
sketch14.addGeometry([
    Part.Circle(V(11.904179, 53.69628, 0), V(0, 0, 1), 5),
    Part.Circle(V(-11.904179, 53.69628, 0), V(0, 0, 1), 5),
], False)
sketch14.addConstraint([
    Sketcher.Constraint("Equal", 0, 1),
    Sketcher.Constraint("Symmetric", 0, 3, 1, 3, -2),
    Sketcher.Constraint("Diameter", 0, 10.0),
    Sketcher.Constraint("DistanceX", -1, 1, 0, 3, 11.904179),
    Sketcher.Constraint("DistanceY", -1, 1, 0, 3, 53.69628),
])
pocket6 = doc.addObject("PartDesign::Pocket", "Pocket005")
body.addObject(pocket6)
pocket6.Profile = sketch14
pocket6.Type = "ThroughAll"
doc.recompute()

polarpattern3 = doc.addObject("PartDesign::PolarPattern", "PolarPattern002")
body.addObject(polarpattern3)
polarpattern3.Originals = [pocket6]
polarpattern3.Axis = (doc.Y_Axis, [""])
polarpattern3.Angle = 360
polarpattern3.Occurrences = 4
body.Tip = polarpattern3
doc.recompute()

fillet = doc.addObject("PartDesign::Fillet", "Fillet")
body.addObject(fillet)
fillet.Base = (polarpattern3, edges_at(polarpattern3, [
    (-60, 0, -52),
    (-52, 0, -52),
    (-52, 0, -62),
    (60, 0, -52),
    (52, 0, -62),
    (52, 0, -52),
    (60, 0, 52),
    (52, 0, 52),
    (52, 0, 62),
    (-60, 0, 52),
    (-52, 0, 62),
    (-52, 0, 52),
]))
fillet.Radius = 1

doc.recompute()
